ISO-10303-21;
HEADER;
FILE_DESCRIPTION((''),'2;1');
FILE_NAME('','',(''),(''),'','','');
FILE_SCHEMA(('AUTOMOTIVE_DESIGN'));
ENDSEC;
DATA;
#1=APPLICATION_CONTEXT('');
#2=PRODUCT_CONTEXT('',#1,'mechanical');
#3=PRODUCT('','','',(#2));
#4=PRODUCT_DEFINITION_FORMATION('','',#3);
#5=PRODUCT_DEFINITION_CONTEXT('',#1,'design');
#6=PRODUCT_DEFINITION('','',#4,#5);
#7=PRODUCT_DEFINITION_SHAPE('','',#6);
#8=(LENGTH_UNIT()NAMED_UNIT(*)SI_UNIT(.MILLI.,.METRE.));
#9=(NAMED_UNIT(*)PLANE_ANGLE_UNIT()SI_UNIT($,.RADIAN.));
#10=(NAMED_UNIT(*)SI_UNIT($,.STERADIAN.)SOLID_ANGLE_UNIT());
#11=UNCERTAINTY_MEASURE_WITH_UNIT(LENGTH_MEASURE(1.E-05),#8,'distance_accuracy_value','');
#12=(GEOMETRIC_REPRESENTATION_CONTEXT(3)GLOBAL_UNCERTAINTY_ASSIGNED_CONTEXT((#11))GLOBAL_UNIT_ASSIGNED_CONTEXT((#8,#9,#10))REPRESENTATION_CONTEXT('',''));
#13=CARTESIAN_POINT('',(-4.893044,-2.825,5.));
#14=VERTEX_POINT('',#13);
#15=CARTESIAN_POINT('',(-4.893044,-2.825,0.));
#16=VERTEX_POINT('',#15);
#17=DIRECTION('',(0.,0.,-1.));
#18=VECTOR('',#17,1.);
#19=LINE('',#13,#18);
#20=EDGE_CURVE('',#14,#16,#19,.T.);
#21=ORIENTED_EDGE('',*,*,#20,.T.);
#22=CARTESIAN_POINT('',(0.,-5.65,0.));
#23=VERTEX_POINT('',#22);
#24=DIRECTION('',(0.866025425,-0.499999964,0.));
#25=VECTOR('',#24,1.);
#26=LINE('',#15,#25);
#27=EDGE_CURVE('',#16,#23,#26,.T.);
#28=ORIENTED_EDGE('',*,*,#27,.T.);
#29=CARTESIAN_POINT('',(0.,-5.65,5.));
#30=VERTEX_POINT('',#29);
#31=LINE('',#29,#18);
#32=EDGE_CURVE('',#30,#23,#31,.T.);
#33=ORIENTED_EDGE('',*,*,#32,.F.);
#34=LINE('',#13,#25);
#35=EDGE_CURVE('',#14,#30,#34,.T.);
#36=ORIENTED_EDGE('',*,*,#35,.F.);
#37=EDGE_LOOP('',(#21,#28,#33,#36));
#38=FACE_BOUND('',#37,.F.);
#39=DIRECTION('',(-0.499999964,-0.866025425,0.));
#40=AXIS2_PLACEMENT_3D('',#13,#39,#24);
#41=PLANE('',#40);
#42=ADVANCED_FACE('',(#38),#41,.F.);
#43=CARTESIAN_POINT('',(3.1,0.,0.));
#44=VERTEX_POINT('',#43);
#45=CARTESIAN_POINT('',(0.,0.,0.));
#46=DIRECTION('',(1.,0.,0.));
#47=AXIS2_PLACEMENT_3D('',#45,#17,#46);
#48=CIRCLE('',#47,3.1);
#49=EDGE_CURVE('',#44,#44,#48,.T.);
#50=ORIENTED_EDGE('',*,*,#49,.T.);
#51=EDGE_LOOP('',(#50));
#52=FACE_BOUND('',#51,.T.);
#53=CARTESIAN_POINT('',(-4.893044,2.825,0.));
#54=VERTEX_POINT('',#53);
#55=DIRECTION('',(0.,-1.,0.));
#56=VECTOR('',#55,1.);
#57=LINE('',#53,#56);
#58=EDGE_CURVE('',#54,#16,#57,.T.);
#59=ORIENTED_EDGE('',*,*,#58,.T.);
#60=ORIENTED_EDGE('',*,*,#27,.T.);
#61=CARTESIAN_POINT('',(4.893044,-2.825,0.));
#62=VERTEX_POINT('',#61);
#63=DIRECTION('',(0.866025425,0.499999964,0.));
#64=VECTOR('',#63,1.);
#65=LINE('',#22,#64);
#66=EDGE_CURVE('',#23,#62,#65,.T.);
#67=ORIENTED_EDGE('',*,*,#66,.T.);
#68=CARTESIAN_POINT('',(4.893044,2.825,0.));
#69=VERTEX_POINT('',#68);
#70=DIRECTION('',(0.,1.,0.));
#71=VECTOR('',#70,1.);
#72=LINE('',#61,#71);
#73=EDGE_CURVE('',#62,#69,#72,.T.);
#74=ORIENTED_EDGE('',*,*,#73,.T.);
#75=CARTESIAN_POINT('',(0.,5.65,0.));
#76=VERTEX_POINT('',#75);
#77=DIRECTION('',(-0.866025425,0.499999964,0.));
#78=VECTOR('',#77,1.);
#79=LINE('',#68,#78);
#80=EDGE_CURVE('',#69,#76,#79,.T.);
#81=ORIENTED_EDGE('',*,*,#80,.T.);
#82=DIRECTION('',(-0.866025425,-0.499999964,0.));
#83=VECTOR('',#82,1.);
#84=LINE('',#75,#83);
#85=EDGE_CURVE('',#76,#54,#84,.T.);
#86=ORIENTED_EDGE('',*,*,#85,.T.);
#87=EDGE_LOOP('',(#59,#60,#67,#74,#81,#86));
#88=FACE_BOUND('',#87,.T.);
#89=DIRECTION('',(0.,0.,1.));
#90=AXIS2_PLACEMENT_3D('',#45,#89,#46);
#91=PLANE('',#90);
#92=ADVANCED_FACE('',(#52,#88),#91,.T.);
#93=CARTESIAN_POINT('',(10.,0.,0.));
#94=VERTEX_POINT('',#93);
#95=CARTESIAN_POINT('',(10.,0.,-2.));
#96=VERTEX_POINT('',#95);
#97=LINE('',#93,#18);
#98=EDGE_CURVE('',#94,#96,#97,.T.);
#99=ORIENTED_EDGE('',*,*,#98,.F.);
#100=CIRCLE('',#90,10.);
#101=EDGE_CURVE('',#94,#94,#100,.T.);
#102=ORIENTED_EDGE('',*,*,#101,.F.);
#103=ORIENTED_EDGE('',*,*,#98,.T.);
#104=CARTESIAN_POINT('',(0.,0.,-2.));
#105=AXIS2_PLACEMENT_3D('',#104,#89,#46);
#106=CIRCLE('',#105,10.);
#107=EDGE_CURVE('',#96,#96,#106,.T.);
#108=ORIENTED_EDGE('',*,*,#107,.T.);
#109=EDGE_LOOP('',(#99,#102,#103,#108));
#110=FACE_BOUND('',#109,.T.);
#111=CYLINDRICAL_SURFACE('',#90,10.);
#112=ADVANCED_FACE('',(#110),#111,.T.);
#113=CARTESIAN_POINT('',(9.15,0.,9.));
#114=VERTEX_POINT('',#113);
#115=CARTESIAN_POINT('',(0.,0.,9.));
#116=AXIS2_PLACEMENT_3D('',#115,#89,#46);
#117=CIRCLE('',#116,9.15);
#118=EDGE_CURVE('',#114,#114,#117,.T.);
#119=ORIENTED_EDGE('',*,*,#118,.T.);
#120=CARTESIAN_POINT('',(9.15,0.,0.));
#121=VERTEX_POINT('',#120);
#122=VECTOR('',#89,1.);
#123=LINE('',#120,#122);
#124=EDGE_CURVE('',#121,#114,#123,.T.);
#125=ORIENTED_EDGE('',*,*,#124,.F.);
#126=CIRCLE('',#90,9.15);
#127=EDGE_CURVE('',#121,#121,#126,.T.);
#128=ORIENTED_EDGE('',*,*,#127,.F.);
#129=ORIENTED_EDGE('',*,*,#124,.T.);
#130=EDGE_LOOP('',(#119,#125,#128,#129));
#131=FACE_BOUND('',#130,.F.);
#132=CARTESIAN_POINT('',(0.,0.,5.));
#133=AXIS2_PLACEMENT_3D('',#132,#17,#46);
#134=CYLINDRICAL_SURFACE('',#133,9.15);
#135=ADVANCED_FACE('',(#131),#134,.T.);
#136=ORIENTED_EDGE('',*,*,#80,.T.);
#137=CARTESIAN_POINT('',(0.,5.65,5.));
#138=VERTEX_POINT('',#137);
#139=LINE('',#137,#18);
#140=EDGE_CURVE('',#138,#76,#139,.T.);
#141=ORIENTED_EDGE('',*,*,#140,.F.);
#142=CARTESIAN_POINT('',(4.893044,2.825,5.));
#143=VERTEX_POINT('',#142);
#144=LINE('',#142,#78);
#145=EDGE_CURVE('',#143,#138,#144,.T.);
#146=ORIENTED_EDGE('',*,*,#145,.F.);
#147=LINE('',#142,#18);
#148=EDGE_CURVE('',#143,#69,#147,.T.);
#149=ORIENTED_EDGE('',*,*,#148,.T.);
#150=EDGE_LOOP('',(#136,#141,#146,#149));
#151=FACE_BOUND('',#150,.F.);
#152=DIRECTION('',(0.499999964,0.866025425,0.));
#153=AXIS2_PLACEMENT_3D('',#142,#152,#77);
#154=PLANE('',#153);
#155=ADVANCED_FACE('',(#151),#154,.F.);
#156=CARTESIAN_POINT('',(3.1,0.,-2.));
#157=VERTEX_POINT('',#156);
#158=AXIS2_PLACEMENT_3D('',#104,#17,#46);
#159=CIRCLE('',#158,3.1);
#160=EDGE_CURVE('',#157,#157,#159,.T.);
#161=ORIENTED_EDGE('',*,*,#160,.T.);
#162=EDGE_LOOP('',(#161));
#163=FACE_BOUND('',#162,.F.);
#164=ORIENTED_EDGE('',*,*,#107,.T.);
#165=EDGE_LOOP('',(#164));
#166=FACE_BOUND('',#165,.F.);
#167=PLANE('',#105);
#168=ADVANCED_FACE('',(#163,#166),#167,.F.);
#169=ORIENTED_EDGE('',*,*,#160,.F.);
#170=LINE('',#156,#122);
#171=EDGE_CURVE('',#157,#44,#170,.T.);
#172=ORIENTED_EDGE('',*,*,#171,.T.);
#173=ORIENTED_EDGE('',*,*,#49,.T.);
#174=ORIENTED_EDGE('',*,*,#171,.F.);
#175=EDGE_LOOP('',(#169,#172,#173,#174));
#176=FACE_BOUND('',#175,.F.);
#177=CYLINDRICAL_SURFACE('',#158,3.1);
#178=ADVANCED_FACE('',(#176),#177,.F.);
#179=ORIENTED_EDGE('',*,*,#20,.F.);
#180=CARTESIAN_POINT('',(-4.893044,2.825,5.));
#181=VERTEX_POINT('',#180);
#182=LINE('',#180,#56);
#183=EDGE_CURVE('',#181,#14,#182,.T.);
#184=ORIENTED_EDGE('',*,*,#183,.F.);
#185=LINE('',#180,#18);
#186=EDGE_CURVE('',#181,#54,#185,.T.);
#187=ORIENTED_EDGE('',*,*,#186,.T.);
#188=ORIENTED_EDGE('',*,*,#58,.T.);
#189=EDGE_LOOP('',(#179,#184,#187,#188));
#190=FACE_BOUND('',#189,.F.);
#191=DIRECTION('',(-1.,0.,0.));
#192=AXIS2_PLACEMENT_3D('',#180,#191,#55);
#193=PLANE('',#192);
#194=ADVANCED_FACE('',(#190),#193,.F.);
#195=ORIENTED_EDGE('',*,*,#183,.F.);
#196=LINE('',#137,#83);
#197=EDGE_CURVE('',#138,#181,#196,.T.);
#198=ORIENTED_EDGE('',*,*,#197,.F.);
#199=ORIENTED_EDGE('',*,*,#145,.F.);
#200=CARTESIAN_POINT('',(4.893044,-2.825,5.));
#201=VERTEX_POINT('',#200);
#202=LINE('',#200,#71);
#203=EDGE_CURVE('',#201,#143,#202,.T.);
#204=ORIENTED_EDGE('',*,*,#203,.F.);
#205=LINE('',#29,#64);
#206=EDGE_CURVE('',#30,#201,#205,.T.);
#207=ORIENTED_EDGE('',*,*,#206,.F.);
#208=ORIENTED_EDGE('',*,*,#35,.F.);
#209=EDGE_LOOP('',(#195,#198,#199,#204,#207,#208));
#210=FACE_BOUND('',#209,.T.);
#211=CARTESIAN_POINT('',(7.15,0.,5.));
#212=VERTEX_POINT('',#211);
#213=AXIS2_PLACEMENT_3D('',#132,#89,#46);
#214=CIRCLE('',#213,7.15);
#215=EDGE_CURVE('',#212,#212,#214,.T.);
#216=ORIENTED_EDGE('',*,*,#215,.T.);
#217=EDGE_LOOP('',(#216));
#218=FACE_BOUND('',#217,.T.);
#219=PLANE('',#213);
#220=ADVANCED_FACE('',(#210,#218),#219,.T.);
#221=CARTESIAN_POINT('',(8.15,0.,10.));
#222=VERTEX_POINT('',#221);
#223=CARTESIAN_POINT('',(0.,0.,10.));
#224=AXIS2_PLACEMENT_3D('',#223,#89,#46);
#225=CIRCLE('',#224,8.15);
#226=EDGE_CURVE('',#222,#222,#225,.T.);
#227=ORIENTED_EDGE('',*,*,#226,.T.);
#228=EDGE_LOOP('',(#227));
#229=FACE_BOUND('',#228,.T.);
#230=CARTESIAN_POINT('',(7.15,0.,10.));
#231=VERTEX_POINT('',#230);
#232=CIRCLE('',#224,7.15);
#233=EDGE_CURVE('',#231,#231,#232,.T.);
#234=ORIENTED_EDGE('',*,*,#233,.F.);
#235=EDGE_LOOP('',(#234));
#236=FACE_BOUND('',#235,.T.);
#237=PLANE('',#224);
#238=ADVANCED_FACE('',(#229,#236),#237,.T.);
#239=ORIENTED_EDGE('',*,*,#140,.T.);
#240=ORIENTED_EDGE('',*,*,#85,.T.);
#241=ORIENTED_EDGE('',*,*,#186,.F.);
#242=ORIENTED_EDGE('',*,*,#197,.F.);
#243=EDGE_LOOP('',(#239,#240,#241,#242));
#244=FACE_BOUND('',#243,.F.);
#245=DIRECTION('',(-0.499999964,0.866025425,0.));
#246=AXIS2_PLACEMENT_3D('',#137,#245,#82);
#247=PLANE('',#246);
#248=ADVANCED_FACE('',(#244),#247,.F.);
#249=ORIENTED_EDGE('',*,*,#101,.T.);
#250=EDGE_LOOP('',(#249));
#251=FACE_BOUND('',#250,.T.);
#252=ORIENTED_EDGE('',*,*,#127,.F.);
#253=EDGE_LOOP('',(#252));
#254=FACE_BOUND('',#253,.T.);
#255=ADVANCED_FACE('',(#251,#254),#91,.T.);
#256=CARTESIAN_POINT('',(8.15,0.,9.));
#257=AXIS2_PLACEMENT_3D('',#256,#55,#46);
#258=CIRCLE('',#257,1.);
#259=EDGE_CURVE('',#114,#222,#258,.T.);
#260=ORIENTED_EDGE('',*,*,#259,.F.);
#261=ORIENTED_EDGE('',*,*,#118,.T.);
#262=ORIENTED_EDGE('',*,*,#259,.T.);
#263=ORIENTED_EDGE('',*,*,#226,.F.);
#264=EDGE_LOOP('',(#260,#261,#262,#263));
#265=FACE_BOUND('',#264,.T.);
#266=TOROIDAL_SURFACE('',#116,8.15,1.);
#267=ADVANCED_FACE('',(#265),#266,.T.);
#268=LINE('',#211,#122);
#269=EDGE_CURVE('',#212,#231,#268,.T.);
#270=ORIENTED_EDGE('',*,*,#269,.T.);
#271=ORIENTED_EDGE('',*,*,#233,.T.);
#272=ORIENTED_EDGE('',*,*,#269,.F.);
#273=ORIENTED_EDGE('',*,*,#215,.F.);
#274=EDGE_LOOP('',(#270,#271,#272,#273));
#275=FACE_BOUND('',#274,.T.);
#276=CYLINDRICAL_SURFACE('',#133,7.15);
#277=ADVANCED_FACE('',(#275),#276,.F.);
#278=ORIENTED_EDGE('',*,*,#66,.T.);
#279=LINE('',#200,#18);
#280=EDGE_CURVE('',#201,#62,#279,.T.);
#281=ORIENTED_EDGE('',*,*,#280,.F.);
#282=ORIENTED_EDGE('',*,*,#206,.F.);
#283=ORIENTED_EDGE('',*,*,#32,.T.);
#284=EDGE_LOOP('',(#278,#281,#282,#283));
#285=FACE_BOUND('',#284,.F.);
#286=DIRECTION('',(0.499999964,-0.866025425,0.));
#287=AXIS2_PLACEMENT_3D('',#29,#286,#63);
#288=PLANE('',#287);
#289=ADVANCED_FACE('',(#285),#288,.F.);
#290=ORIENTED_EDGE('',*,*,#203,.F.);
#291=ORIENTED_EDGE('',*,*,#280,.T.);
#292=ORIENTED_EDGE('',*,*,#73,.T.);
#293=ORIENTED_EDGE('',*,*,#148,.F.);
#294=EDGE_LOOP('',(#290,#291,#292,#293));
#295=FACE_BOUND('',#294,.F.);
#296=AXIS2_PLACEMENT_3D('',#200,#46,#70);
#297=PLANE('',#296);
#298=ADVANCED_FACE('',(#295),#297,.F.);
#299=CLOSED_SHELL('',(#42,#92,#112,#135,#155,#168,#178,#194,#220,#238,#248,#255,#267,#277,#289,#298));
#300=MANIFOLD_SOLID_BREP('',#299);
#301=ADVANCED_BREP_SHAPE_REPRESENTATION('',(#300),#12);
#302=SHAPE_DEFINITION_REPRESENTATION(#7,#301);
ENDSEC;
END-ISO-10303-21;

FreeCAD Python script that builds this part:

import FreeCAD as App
import Part
import Sketcher

V = App.Vector
Q = App.Units.Quantity


def edges_at(feature, points):
    """Names of the edges that pass closest to the given points."""
    edges = feature.Shape.Edges
    near = lambda p: min(range(len(edges)), key=lambda i: edges[i].distToShape(Part.Vertex(*p))[0])
    return sorted({f"Edge{near(p) + 1}" for p in points})

doc = App.newDocument("Part")
params = doc.addObject("Spreadsheet::Sheet", "Params")
for row, (alias, value) in enumerate([
    ("sketch1_diameter", "20 mm"),
    ("pad1_length", "2 mm"),
    ("sketch2_diameter", "18.3 mm"),
    ("pad2_length", "5 mm"),
    ("sketch3_height", "5.65 mm"),
    ("pocket1_length", "5 mm"),
    ("sketch4_diameter", "18.3 mm"),
    ("sketch4_diameter2", "14.3 mm"),
    ("pad3_length", "5 mm"),
    ("sketch5_diameter", "6.2 mm"),
    ("fillet_radius", "1 mm"),
], start=1):
    params.set(f"A{row}", alias)
    params.set(f"B{row}", "=" + value)
    params.setAlias(f"B{row}", alias)

body = doc.addObject("PartDesign::Body", "Body")

# Sketch on XY plane
sketch1 = body.newObject("Sketcher::SketchObject", "Sketch")
sketch1.AttachmentSupport = (doc.getObject("XY_Plane"), [""])
sketch1.MapMode = "FlatFace"
sketch1.addGeometry(Part.Circle(V(0, 0, 0), V(0, 0, 1), 10), False)
sketch1.addConstraint([
    Sketcher.Constraint("Coincident", 0, 3, -1, 1),
    Sketcher.Constraint("Diameter", 0, Q("20 mm")),
])
sketch1.setExpression("Constraints[1]", "Params.sketch1_diameter")
pad1 = body.newObject("PartDesign::Pad", "Pad")
pad1.Profile = sketch1
pad1.setExpression("Length", "Params.pad1_length")
pad1.Reversed = True

# Sketch on XY plane
sketch2 = body.newObject("Sketcher::SketchObject", "Sketch001")
sketch2.AttachmentSupport = (doc.getObject("XY_Plane"), [""])
sketch2.MapMode = "FlatFace"
sketch2.addGeometry(Part.Circle(V(0, 0, 0), V(0, 0, 1), 9), False)
sketch2.addConstraint([
    Sketcher.Constraint("Coincident", 0, 3, -1, 1),
    Sketcher.Constraint("Diameter", 0, Q("18.3 mm")),
])
sketch2.setExpression("Constraints[1]", "Params.sketch2_diameter")
pad2 = body.newObject("PartDesign::Pad", "Pad001")
pad2.Profile = sketch2
pad2.setExpression("Length", "Params.pad2_length")

# Sketch on XY plane
sketch3 = body.newObject("Sketcher::SketchObject", "Sketch002")
sketch3.AttachmentSupport = (doc.getObject("XY_Plane"), [""])
sketch3.MapMode = "FlatFace"
sketch3.AttachmentOffset = App.Placement(V(0, 0, 5), App.Rotation())
sketch3.addGeometry([
    Part.LineSegment(V(5, 3, 0), V(0, 6, 0)),  # 0
    Part.LineSegment(V(0, 6, 0), V(-5, 3, 0)),  # 1
    Part.LineSegment(V(-5, 3, 0), V(-5, -3, 0)),  # 2
    Part.LineSegment(V(-5, -3, 0), V(0, -6, 0)),  # 3
    Part.LineSegment(V(0, -6, 0), V(5, -3, 0)),  # 4
    Part.LineSegment(V(5, -3, 0), V(5, 3, 0)),  # 5
], False)
sketch3.addConstraint([
    Sketcher.Constraint("Coincident", 0, 2, 1, 1),
    Sketcher.Constraint("Coincident", 1, 2, 2, 1),
    Sketcher.Constraint("Coincident", 2, 2, 3, 1),
    Sketcher.Constraint("Coincident", 3, 2, 4, 1),
    Sketcher.Constraint("Coincident", 4, 2, 5, 1),
    Sketcher.Constraint("Coincident", 5, 2, 0, 1),
    Sketcher.Constraint("Vertical", 2),
    Sketcher.Constraint("Vertical", 5),
    Sketcher.Constraint("Symmetric", 0, 2, 3, 2, -1, 1),
    Sketcher.Constraint("Symmetric", 1, 2, 4, 2, -1, 1),
    Sketcher.Constraint("PointOnObject", 0, 2, -2),
    Sketcher.Constraint("Parallel", 0, 3),
    Sketcher.Constraint("Horizontal", 2, 2, 4, 2),
    Sketcher.Constraint("Angle", 0, Q("150.000002 deg")),
    Sketcher.Constraint("DistanceY", 2, 2, 2, 1, Q("5.65 mm")),
    Sketcher.Constraint("DistanceY", 3, 2, 0, 2, Q("11.3 mm")),
])
sketch3.setExpression("Constraints[14]", "Params.sketch3_height")
pocket1 = body.newObject("PartDesign::Pocket", "Pocket")
pocket1.Profile = sketch3
pocket1.setExpression("Length", "Params.pocket1_length")

# Sketch on XY plane
sketch4 = body.newObject("Sketcher::SketchObject", "Sketch003")
sketch4.AttachmentSupport = (doc.getObject("XY_Plane"), [""])
sketch4.MapMode = "FlatFace"
sketch4.AttachmentOffset = App.Placement(V(0, 0, 5), App.Rotation())
sketch4.addGeometry([
    Part.Circle(V(0, 0, 0), V(0, 0, 1), 9),
    Part.Circle(V(0, 0, 0), V(0, 0, 1), 7),
], False)
sketch4.addConstraint([
    Sketcher.Constraint("Coincident", 0, 3, -1, 1),
    Sketcher.Constraint("Coincident", 1, 3, -1, 1),
    Sketcher.Constraint("Diameter", 0, Q("18.3 mm")),
    Sketcher.Constraint("Diameter", 1, Q("14.3 mm")),
])
sketch4.setExpression("Constraints[2]", "Params.sketch4_diameter")
sketch4.setExpression("Constraints[3]", "Params.sketch4_diameter2")
pad3 = body.newObject("PartDesign::Pad", "Pad002")
pad3.Profile = sketch4
pad3.setExpression("Length", "Params.pad3_length")

# Sketch on XY plane
sketch5 = body.newObject("Sketcher::SketchObject", "Sketch004")
sketch5.AttachmentSupport = (doc.getObject("XY_Plane"), [""])
sketch5.MapMode = "FlatFace"
sketch5.AttachmentOffset = App.Placement(V(0, 0, -2), App.Rotation())
sketch5.addGeometry(Part.Circle(V(0, 0, 0), V(0, 0, 1), 3.1), False)
sketch5.addConstraint([
    Sketcher.Constraint("Coincident", 0, 3, -1, 1),
    Sketcher.Constraint("Diameter", 0, Q("6.2 mm")),
])
sketch5.setExpression("Constraints[1]", "Params.sketch5_diameter")
pocket2 = body.newObject("PartDesign::Pocket", "Pocket001")
pocket2.Profile = sketch5
pocket2.Type = "ThroughAll"
pocket2.Reversed = True
doc.recompute()

fillet = body.newObject("PartDesign::Fillet", "Fillet")
fillet.Base = (pocket2, edges_at(pocket2, [(-9.15, 0, 10)]))
fillet.setExpression("Radius", "Params.fillet_radius")

doc.recompute()
